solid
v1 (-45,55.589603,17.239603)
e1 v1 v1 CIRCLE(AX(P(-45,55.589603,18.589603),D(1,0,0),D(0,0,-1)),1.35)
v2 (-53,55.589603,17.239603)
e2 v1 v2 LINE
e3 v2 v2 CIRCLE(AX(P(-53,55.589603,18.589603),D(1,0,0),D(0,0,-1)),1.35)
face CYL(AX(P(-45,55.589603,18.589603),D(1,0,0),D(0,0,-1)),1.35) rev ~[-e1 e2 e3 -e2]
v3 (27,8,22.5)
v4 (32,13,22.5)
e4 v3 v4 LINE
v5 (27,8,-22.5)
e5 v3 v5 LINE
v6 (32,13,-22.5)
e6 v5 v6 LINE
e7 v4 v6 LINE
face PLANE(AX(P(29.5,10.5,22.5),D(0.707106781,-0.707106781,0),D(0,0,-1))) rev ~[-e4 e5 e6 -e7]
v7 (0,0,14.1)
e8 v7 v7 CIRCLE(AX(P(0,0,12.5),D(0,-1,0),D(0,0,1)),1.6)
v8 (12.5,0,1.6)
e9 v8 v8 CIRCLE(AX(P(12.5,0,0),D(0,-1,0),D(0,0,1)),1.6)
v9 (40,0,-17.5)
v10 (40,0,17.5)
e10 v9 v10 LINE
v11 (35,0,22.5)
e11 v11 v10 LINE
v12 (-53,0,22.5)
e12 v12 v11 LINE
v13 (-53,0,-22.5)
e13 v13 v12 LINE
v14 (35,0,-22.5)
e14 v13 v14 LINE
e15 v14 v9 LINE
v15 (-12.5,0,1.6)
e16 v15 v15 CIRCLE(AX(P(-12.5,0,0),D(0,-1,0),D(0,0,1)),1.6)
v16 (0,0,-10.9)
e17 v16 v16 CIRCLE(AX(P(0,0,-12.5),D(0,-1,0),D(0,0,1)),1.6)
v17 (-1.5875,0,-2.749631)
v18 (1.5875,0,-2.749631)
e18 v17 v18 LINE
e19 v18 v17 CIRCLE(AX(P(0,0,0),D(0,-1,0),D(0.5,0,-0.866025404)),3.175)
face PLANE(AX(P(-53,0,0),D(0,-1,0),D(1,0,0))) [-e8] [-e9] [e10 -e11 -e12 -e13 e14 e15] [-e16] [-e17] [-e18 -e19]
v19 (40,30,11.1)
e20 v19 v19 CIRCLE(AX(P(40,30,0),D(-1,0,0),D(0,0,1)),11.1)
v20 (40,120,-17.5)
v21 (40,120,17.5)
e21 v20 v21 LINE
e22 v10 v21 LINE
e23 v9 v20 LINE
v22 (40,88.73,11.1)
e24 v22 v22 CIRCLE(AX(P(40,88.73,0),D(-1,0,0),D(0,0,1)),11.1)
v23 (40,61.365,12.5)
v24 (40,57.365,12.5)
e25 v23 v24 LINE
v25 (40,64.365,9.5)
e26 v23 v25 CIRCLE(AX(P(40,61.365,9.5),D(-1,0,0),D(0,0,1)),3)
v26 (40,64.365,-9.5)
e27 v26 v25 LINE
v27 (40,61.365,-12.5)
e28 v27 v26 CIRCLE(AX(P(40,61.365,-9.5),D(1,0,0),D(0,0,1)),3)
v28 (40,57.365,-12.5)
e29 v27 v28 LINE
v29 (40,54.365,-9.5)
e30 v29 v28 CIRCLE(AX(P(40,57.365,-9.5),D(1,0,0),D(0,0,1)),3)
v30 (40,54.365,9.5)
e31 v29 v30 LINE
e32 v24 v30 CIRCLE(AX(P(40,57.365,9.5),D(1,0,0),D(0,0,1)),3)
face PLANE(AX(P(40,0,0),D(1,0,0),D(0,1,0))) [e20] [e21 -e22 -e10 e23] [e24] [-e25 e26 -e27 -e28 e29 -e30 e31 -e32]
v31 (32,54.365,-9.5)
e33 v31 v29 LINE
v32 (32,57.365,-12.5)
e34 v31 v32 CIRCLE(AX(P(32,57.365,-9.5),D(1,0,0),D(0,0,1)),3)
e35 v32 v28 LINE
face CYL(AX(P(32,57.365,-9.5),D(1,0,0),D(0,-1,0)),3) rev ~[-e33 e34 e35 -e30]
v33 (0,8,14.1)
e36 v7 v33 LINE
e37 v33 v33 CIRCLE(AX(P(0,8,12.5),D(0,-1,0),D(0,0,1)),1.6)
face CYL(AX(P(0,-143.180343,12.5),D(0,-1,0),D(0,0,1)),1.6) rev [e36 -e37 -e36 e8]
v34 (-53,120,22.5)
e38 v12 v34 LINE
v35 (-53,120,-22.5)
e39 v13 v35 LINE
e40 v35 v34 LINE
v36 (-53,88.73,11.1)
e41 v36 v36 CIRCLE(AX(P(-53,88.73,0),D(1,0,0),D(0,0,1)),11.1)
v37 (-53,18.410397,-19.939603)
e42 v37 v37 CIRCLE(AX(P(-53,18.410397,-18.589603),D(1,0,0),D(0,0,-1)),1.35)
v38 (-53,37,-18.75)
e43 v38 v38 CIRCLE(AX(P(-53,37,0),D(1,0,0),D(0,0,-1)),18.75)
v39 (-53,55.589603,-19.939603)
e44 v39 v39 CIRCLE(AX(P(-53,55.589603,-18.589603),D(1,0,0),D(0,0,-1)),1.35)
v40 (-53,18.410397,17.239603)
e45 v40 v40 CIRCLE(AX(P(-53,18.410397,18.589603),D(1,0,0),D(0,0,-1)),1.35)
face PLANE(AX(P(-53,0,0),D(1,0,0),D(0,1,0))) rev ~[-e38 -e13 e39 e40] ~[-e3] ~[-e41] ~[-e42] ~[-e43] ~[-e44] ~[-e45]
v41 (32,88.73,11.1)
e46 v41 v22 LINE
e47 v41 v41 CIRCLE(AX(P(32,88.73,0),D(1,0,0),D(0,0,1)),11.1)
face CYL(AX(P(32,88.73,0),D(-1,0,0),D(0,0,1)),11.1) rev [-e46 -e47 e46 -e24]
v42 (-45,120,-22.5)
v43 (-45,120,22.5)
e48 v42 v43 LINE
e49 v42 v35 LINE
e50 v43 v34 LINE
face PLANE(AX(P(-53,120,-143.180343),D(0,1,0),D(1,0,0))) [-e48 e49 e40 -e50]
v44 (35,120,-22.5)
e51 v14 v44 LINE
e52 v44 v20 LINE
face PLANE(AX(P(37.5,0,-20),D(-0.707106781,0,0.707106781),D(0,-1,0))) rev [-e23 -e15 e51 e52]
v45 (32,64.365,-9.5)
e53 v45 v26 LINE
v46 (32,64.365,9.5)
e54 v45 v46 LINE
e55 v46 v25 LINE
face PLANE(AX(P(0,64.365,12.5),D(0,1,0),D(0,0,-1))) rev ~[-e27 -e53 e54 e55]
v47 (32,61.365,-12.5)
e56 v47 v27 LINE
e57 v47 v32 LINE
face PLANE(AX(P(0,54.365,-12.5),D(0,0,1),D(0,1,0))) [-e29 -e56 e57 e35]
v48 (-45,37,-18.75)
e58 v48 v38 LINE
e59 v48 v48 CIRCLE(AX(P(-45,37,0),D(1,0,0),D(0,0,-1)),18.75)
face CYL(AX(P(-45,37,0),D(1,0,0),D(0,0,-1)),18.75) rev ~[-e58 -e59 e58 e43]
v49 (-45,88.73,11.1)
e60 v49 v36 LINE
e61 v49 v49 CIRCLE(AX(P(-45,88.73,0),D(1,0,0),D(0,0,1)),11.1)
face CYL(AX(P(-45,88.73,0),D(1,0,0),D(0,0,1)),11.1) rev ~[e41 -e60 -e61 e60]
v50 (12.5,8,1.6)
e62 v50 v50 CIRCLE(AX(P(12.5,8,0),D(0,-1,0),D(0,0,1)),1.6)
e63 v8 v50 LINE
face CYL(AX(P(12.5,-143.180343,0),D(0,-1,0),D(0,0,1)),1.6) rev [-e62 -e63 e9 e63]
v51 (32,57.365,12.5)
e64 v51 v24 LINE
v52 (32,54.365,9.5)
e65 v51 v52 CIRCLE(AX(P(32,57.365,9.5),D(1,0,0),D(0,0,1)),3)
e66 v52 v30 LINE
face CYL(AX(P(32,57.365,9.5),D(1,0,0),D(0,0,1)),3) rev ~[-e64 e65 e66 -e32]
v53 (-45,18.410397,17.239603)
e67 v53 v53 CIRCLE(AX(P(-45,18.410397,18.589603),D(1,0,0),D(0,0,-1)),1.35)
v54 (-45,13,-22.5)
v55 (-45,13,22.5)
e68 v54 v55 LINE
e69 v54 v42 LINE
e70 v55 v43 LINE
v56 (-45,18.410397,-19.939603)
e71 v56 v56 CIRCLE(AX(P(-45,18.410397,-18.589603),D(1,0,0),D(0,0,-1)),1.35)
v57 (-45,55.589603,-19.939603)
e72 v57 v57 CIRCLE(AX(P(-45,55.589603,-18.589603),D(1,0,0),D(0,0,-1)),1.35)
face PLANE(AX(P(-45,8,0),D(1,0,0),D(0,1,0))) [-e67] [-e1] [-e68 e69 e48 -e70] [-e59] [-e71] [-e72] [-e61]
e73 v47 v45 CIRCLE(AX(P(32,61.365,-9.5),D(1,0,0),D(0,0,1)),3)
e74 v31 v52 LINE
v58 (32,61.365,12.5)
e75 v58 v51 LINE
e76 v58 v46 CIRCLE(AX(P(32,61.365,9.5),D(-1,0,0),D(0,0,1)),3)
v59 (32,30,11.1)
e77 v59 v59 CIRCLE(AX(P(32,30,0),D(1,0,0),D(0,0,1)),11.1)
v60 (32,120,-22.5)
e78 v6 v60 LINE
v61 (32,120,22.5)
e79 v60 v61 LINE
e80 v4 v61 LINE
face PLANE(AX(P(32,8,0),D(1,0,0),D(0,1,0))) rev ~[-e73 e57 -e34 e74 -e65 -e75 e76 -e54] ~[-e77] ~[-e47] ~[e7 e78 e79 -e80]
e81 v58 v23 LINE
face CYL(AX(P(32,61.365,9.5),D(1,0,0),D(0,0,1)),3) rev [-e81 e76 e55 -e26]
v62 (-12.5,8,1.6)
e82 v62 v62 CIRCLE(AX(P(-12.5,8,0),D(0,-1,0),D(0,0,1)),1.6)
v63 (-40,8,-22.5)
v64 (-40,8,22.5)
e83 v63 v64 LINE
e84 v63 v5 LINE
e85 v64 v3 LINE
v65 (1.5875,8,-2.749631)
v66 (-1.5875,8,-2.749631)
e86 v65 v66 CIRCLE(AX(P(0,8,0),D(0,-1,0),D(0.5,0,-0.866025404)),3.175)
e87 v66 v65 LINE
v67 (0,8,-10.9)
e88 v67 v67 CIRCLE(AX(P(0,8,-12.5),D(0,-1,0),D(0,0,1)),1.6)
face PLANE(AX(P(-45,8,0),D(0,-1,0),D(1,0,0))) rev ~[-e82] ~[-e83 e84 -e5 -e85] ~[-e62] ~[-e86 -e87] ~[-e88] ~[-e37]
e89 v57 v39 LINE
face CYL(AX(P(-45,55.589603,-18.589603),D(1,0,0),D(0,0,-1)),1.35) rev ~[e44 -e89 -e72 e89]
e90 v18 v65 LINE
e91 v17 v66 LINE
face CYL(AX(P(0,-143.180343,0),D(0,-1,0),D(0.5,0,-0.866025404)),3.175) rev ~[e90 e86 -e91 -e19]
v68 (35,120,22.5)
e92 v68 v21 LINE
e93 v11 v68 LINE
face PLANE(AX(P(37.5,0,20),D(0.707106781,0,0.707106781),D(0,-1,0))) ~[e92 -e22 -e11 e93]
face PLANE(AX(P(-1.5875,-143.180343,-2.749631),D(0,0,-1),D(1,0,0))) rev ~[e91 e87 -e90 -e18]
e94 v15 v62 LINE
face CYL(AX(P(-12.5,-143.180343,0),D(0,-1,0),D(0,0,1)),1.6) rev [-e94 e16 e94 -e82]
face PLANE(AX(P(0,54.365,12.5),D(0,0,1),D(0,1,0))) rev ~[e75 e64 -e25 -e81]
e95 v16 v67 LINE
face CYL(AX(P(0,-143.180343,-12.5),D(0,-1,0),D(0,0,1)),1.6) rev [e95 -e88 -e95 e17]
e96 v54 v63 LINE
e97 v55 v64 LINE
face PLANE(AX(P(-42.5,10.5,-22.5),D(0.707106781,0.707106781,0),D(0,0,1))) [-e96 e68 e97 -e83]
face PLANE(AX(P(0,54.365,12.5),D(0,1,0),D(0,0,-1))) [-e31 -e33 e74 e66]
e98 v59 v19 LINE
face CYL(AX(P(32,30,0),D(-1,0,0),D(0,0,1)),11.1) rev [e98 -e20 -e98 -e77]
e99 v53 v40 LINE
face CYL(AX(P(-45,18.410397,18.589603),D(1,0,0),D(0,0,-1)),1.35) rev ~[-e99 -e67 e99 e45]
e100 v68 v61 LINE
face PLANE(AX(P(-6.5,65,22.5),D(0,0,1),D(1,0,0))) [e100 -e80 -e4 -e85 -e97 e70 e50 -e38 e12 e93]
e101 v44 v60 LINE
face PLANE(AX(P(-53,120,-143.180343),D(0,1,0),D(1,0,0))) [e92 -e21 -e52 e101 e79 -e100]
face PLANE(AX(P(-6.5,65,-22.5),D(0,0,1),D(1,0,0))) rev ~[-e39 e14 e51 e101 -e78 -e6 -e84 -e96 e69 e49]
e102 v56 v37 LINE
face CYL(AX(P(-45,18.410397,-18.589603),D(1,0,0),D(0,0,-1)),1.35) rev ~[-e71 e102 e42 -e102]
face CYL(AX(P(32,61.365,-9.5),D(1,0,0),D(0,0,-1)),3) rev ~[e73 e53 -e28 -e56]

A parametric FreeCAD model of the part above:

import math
import FreeCAD as App
import Part
import Sketcher
from FreeCAD import Vector


def edges_at(feature, points):
    """Names of the edges that pass closest to the given points."""
    edges = feature.Shape.Edges
    near = lambda p: min(range(len(edges)), key=lambda i: edges[i].distToShape(Part.Vertex(*p))[0])
    return sorted({f"Edge{near(p) + 1}" for p in points})


def add_polygon(sketch, points):
    """Adds a closed chain of lines whose ends are joined by coincident constraints."""
    first, n = sketch.GeometryCount, len(points)
    for a, b in zip(points, points[1:] + points[:1]):
        sketch.addGeometry(Part.LineSegment(App.Vector(*a, 0), App.Vector(*b, 0)), False)
    for i in range(n):
        sketch.addConstraint(Sketcher.Constraint("Coincident", first + i, 2, first + (i + 1) % n, 1))

doc = App.newDocument("Part")
body = doc.addObject("PartDesign::Body", "Body")

sketch1 = body.newObject("Sketcher::SketchObject", "Sketch")
sketch1.AttachmentSupport = (doc.getObject("XY_Plane"), [""])
sketch1.MapMode = "FlatFace"
add_polygon(sketch1, [(-53, 130), (-53, 0), (40, 0), (40, 130)])
add_polygon(sketch1, [(32, 8), (-45, 8), (-45, 122), (32, 122)])
sketch1.addConstraint([
    Sketcher.Constraint("Vertical", 0),
    Sketcher.Constraint("Horizontal", 1),
    Sketcher.Constraint("Vertical", 2),
    Sketcher.Constraint("Horizontal", 3),
    Sketcher.Constraint("Horizontal", 4),
    Sketcher.Constraint("Vertical", 5),
    Sketcher.Constraint("Horizontal", 6),
    Sketcher.Constraint("Vertical", 7),
    Sketcher.Constraint("PointOnObject", 0, 2, -1),
    Sketcher.Constraint("DistanceX", 1, 1, 1, 2, 93.0),
    Sketcher.Constraint("DistanceX", 4, 2, 4, 1, 77.0),
    Sketcher.Constraint("DistanceY", 0, 2, 0, 1, 130.0),
    Sketcher.Constraint("DistanceY", 5, 1, 5, 2, 114.0),
    Sketcher.Constraint("DistanceX", 0, 2, -1, 1, 53.0),
    Sketcher.Constraint("DistanceX", 4, 2, -1, 1, 45.0),
    Sketcher.Constraint("DistanceY", -1, 1, 4, 2, 8.0),
])
pad1 = body.newObject("PartDesign::Pad", "Pad")
pad1.Profile = sketch1
pad1.Length = 45
pad1.Midplane = True

sketch2 = body.newObject("Sketcher::SketchObject", "Sketch001")
sketch2.AttachmentSupport = (doc.getObject("YZ_Plane"), [""])
sketch2.MapMode = "FlatFace"
sketch2.AttachmentOffset = App.Placement(Vector(0, 0, 32), App.Rotation())
sketch2.addGeometry([
    Part.Circle(Vector(89, 0, 0), Vector(0, 0, 1), 11),
    Part.Circle(Vector(30, 0, 0), Vector(0, 0, 1), 11),
], False)
sketch2.addConstraint([
    Sketcher.Constraint("Equal", 0, 1),
    Sketcher.Constraint("PointOnObject", 0, 3, -1),
    Sketcher.Constraint("PointOnObject", 1, 3, -1),
    Sketcher.Constraint("Diameter", 0, 22.2),
    Sketcher.Constraint("DistanceX", -1, 1, 1, 3, 30.0),
    Sketcher.Constraint("DistanceX", -1, 1, 0, 3, 88.73),
])
pocket1 = body.newObject("PartDesign::Pocket", "Pocket")
pocket1.Profile = sketch2
pocket1.Type = "ThroughAll"
pocket1.Reversed = True

sketch3 = body.newObject("Sketcher::SketchObject", "Sketch002")
sketch3.AttachmentSupport = (doc.getObject("YZ_Plane"), [""])
sketch3.MapMode = "FlatFace"
sketch3.AttachmentOffset = App.Placement(Vector(0, 0, -45), App.Rotation())
sketch3.addGeometry([
    Part.Circle(Vector(89, 0, 0), Vector(0, 0, 1), 11),
    Part.Circle(Vector(37, 0, 0), Vector(0, 0, 1), 19),
], False)
sketch3.addConstraint([
    Sketcher.Constraint("PointOnObject", 0, 3, -1),
    Sketcher.Constraint("PointOnObject", 1, 3, -1),
    Sketcher.Constraint("Diameter", 0, 22.2),
    Sketcher.Constraint("Diameter", 1, 37.5),
    Sketcher.Constraint("DistanceX", -1, 1, 1, 3, 37.0),
    Sketcher.Constraint("DistanceX", -1, 1, 0, 3, 88.73),
])
pocket2 = body.newObject("PartDesign::Pocket", "Pocket001")
pocket2.Profile = sketch3
pocket2.Type = "ThroughAll"

sketch4 = body.newObject("Sketcher::SketchObject", "Sketch003")
sketch4.AttachmentSupport = (doc.getObject("XZ_Plane"), [""])
sketch4.MapMode = "FlatFace"
sketch4.addGeometry([
    Part.Circle(Vector(-12.5, 0, 0), Vector(0, 0, 1), 1.6),
    Part.Circle(Vector(0, -12.5, 0), Vector(0, 0, 1), 1.6),
    Part.Circle(Vector(12.5, 0, 0), Vector(0, 0, 1), 1.6),
    Part.Circle(Vector(0, 12.5, 0), Vector(0, 0, 1), 1.6),
    Part.LineSegment(Vector(1.6, -2.7, 0), Vector(-1.6, -2.7, 0)),
    Part.ArcOfCircle(Part.Circle(Vector(0, 0, 0), Vector(0, 0, 1), 3.2), math.radians(-60), math.radians(240)),
], False)
sketch4.addConstraint([
    Sketcher.Constraint("Coincident", 4, 1, 5, 1),
    Sketcher.Constraint("Coincident", 5, 2, 4, 2),
    Sketcher.Constraint("Horizontal", 4),
    Sketcher.Constraint("Coincident", 5, 3, -1, 1),
    Sketcher.Constraint("Equal", 0, 1),
    Sketcher.Constraint("Equal", 1, 2),
    Sketcher.Constraint("Equal", 2, 3),
    Sketcher.Constraint("Symmetric", 0, 3, 2, 3, -1, 1),
    Sketcher.Constraint("Symmetric", 1, 3, 3, 3, -1, 1),
    Sketcher.Constraint("PointOnObject", 0, 3, -1),
    Sketcher.Constraint("PointOnObject", 1, 3, -2),
    Sketcher.Constraint("Diameter", 0, 3.2),
    Sketcher.Constraint("Radius", 5, 3.175),
    Sketcher.Constraint("DistanceX", 0, 3, 2, 3, 25.0),
    Sketcher.Constraint("DistanceY", 1, 3, 3, 3, 25.0),
    Sketcher.Constraint("DistanceX", 4, 2, 4, 1, 3.175),
])
pocket3 = body.newObject("PartDesign::Pocket", "Pocket002")
pocket3.Profile = sketch4
pocket3.Type = "ThroughAll"
pocket3.Midplane = True

sketch5 = body.newObject("Sketcher::SketchObject", "Sketch004")
sketch5.AttachmentSupport = (doc.getObject("YZ_Plane"), [""])
sketch5.MapMode = "FlatFace"
sketch5.AttachmentOffset = App.Placement(Vector(0, 0, -45), App.Rotation())
sketch5.addGeometry([
    Part.Circle(Vector(18.4, -18.6, 0), Vector(0, 0, 1), 1.4),
    Part.Circle(Vector(18.4, 18.6, 0), Vector(0, 0, 1), 1.4),
    Part.Circle(Vector(55.6, 18.6, 0), Vector(0, 0, 1), 1.4),
    Part.Circle(Vector(55.6, -18.6, 0), Vector(0, 0, 1), 1.4),
], False)
sketch5.addConstraint([
    Sketcher.Constraint("Equal", 0, 1),
    Sketcher.Constraint("Equal", 1, 2),
    Sketcher.Constraint("Equal", 2, 3),
    Sketcher.Constraint("Symmetric", 0, 3, 1, 3, -1),
    Sketcher.Constraint("Symmetric", 2, 3, 3, 3, -1),
    Sketcher.Constraint("Horizontal", 1, 3, 2, 3),
    Sketcher.Constraint("Diameter", 0, 2.7),
    Sketcher.Constraint("DistanceX", -1, 1, 0, 3, 18.410397),
    Sketcher.Constraint("DistanceY", 0, 3, -1, 1, 18.589603),
    Sketcher.Constraint("DistanceX", -1, 1, 2, 3, 55.589603),
])
pocket4 = body.newObject("PartDesign::Pocket", "Pocket003")
pocket4.Profile = sketch5
pocket4.Type = "ThroughAll"
doc.recompute()

chamfer = body.newObject("PartDesign::Chamfer", "Chamfer")
chamfer.Base = (pocket4, edges_at(pocket4, [(40, 65, 22.5), (40, 65, -22.5)]))
chamfer.Size = 5

sketch6 = body.newObject("Sketcher::SketchObject", "Sketch005")
sketch6.AttachmentSupport = (doc.getObject("XY_Plane"), [""])
sketch6.MapMode = "FlatFace"
add_polygon(sketch6, [(-53, 130), (-53, 120), (53, 120), (53, 130)])
sketch6.addConstraint([
    Sketcher.Constraint("Vertical", 0),
    Sketcher.Constraint("Horizontal", 1),
    Sketcher.Constraint("Vertical", 2),
    Sketcher.Constraint("Horizontal", 3),
    Sketcher.Constraint("DistanceX", 1, 1, 1, 2, 106.0),
    Sketcher.Constraint("DistanceY", 0, 2, 0, 1, 10.0),
    Sketcher.Constraint("DistanceX", 0, 2, -1, 1, 53.0),
    Sketcher.Constraint("DistanceY", -1, 1, 0, 2, 120.0),
])
pocket5 = body.newObject("PartDesign::Pocket", "Pocket004")
pocket5.Profile = sketch6
pocket5.Type = "ThroughAll"
pocket5.Midplane = True
doc.recompute()

chamfer2 = body.newObject("PartDesign::Chamfer", "Chamfer001")
chamfer2.Base = (pocket5, edges_at(pocket5, [(-45, 8, 0), (32, 8, 0)]))
chamfer2.Size = 5

sketch7 = body.newObject("Sketcher::SketchObject", "Sketch006")
sketch7.AttachmentSupport = (doc.getObject("YZ_Plane"), [""])
sketch7.MapMode = "FlatFace"
add_polygon(sketch7, [(64, 12), (54, 12), (54, -12), (64, -12)])
sketch7.addConstraint([
    Sketcher.Constraint("Horizontal", 0),
    Sketcher.Constraint("Vertical", 1),
    Sketcher.Constraint("Horizontal", 2),
    Sketcher.Constraint("Vertical", 3),
    Sketcher.Constraint("DistanceX", 0, 2, 0, 1, 10.0),
    Sketcher.Constraint("DistanceY", 1, 2, 1, 1, 25.0),
    Sketcher.Constraint("DistanceY", -1, 1, 0, 2, 12.5),
    Sketcher.Constraint("DistanceX", -1, 1, 0, 2, 54.365),
])
pocket6 = body.newObject("PartDesign::Pocket", "Pocket005")
pocket6.Profile = sketch7
pocket6.Type = "ThroughAll"
pocket6.Reversed = True
doc.recompute()

fillet = body.newObject("PartDesign::Fillet", "Fillet")
fillet.Base = (pocket6, edges_at(pocket6, [
    (36, 54.365, -12.5),
    (36, 64.365, -12.5),
    (36, 64.365, 12.5),
    (36, 54.365, 12.5),
]))
fillet.Radius = 3

doc.recompute()
